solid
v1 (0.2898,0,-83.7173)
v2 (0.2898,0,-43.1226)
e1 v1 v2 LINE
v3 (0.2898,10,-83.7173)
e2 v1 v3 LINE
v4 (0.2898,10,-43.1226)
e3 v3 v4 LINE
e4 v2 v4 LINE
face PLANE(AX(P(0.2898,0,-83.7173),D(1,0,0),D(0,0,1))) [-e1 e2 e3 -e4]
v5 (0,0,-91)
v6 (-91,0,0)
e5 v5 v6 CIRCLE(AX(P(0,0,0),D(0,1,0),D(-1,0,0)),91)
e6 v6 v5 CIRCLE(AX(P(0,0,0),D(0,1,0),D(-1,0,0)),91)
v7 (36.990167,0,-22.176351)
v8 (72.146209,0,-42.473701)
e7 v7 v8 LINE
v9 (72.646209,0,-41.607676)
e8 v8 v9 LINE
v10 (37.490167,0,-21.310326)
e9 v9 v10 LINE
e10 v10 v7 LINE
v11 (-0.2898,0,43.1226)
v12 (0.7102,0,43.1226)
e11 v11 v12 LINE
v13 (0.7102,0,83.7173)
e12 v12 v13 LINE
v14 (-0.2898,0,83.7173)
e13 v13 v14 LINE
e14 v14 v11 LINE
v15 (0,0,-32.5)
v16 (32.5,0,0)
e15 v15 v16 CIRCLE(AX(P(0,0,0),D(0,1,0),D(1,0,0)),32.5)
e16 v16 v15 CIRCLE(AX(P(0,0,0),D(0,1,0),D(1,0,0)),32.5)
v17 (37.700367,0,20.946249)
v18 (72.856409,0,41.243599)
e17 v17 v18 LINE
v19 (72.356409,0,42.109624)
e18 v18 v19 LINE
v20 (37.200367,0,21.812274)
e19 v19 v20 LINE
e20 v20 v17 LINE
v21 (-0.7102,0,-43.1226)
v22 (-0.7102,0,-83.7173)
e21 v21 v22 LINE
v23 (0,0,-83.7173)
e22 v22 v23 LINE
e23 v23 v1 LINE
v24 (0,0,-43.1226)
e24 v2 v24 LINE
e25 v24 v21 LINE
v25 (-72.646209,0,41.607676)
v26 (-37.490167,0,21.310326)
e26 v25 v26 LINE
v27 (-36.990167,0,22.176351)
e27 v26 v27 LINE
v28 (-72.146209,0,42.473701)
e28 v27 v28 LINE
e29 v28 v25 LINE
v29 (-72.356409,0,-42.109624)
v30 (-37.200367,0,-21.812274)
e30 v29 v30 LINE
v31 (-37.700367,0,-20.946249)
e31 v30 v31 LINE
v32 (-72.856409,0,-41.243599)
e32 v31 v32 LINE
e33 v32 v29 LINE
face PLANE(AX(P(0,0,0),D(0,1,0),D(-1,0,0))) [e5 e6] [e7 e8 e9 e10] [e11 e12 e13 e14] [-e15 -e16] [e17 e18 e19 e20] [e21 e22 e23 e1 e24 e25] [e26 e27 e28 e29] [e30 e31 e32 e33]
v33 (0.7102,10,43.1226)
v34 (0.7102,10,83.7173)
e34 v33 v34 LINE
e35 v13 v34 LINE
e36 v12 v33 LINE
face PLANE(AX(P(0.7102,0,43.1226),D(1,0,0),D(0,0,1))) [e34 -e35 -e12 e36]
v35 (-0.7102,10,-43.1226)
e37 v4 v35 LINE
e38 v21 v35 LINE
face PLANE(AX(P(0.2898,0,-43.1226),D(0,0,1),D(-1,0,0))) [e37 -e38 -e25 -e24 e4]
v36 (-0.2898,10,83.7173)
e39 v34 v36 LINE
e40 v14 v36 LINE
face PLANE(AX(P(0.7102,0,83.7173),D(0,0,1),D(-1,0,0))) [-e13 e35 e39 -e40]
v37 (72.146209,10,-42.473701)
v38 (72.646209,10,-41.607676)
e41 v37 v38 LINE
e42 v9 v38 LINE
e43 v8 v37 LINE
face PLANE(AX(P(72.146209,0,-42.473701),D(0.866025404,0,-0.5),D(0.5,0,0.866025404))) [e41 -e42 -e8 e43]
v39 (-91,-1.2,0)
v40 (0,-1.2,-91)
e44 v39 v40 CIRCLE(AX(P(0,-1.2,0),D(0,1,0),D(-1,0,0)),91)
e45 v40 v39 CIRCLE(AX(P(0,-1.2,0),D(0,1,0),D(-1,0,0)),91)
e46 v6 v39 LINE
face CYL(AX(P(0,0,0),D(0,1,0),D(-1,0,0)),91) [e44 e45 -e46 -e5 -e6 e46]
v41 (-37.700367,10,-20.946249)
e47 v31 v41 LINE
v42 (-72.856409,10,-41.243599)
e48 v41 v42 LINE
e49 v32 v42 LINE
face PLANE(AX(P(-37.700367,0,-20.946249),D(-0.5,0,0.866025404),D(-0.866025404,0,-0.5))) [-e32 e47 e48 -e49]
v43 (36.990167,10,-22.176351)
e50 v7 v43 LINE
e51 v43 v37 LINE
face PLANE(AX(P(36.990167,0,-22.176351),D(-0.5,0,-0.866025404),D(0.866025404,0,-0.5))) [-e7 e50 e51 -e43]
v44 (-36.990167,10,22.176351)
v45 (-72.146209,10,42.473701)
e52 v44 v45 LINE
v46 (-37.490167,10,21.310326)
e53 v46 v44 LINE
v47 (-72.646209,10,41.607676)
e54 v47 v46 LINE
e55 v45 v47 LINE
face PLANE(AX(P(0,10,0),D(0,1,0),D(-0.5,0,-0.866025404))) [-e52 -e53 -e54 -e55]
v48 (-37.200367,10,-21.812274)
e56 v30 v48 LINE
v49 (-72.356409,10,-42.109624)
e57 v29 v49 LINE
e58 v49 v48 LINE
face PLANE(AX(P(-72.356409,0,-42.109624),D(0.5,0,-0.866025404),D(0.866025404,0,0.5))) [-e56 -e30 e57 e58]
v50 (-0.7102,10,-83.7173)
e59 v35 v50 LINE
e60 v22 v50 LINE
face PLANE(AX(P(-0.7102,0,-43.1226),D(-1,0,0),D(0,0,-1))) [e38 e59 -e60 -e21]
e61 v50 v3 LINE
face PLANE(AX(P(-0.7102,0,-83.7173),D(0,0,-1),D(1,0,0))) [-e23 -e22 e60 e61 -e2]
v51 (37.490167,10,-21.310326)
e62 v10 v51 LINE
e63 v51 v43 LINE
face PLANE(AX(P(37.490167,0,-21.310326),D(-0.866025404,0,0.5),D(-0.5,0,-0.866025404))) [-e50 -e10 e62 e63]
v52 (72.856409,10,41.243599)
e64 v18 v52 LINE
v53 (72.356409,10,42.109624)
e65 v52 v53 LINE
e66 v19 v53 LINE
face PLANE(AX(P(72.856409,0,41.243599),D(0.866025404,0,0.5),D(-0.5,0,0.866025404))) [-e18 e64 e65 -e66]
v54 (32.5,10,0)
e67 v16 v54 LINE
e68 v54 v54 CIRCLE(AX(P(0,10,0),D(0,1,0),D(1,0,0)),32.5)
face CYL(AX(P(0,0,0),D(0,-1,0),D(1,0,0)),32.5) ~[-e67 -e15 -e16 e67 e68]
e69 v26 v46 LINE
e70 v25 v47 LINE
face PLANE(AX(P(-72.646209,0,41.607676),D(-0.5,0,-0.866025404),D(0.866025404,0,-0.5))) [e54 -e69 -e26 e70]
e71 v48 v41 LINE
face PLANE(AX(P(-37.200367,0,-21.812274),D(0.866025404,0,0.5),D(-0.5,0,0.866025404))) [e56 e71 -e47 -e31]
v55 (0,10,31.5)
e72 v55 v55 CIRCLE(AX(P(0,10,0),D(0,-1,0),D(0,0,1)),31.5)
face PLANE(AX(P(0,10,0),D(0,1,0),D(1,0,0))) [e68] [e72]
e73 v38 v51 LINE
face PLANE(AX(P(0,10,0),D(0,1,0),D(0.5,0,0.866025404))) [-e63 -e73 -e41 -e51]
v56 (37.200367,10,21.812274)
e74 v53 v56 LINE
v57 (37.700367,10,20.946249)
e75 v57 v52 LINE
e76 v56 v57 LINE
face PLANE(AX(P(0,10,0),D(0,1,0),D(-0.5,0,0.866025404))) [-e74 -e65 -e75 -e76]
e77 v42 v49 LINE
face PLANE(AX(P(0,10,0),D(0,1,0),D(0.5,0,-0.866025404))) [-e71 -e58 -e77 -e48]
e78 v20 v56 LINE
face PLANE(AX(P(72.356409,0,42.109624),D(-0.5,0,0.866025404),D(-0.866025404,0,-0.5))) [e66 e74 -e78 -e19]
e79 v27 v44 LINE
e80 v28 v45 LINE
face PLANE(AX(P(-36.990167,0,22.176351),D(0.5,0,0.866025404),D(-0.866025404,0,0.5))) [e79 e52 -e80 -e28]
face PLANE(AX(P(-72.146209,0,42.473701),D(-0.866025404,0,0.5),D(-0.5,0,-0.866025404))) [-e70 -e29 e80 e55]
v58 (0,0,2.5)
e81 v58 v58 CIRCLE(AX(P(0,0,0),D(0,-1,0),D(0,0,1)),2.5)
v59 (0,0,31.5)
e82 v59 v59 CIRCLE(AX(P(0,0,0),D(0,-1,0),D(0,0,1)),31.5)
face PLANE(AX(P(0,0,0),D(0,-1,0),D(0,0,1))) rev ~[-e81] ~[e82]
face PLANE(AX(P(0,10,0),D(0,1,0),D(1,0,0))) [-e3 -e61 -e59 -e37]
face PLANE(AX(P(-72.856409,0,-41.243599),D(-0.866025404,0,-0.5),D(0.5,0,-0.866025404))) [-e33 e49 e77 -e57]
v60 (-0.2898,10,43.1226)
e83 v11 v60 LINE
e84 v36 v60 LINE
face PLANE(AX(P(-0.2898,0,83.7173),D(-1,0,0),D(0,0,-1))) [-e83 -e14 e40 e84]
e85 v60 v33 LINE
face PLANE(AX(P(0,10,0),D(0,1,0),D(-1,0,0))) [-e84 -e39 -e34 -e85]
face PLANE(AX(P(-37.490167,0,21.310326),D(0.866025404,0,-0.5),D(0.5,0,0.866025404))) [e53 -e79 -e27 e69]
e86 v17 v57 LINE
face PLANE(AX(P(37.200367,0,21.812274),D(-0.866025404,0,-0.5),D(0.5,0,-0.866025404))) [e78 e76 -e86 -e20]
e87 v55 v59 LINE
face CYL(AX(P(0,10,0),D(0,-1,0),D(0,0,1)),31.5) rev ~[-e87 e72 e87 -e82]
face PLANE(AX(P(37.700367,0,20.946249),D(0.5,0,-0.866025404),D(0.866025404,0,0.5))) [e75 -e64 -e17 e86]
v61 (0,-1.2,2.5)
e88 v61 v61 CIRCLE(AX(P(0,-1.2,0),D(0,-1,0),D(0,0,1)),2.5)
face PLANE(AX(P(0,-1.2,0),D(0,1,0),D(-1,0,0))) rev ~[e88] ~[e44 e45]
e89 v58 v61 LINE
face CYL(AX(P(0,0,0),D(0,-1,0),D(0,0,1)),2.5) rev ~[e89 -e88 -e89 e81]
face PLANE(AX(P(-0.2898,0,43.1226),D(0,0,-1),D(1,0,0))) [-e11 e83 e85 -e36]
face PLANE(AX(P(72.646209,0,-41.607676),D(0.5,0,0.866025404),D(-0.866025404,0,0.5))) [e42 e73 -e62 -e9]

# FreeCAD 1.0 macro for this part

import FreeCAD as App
import Part
import Sketcher

V = App.Vector

doc = App.newDocument("Part")
params = doc.addObject("Spreadsheet::Sheet", "Params")
for row, (alias, value) in enumerate([
    ("sketch1_diameter", "182 mm"),
    ("pad1_length", "1.2 mm"),
    ("sketch2_width", "1 mm"),
    ("pad2_length", "10 mm"),
    ("sketch3_diameter", "65 mm"),
    ("pad3_length", "10 mm"),
    ("sketch4_diameter", "63 mm"),
    ("hole_diameter", "63 mm"),
    ("hole_depth", "10 mm"),
    ("sketch5_diameter", "5 mm"),
    ("hole2_diameter", "5 mm"),
    ("hole2_depth", "2 mm"),
], start=1):
    params.set(f"A{row}", alias)
    params.set(f"B{row}", "=" + value)
    params.setAlias(f"B{row}", alias)

body = doc.addObject("PartDesign::Body", "Body")

sketch1 = doc.addObject("Sketcher::SketchObject", "Sketch")
body.addObject(sketch1)
sketch1.AttachmentSupport = (doc.XZ_Plane, [""])
sketch1.MapMode = "FlatFace"
sketch1.addGeometry(Part.Circle(V(0, 0, 0), V(0, 0, 1), 91), False)
sketch1.addConstraint([
    Sketcher.Constraint("Coincident", 0, 3, -1, 1),
    Sketcher.Constraint("Diameter", 0, 182.0),
])
sketch1.setExpression("Constraints[1]", "Params.sketch1_diameter")
pad1 = doc.addObject("PartDesign::Pad", "Pad")
body.addObject(pad1)
pad1.Profile = sketch1
pad1.setExpression("Length", "Params.pad1_length")

sketch2 = doc.addObject("Sketcher::SketchObject", "Sketch001")
body.addObject(sketch2)
sketch2.AttachmentSupport = (doc.XZ_Plane, [""])
sketch2.MapMode = "FlatFace"
sketch2.addGeometry([
    Part.LineSegment(V(0.3, -83.7, 0), V(-0.7, -83.7, 0)),
    Part.LineSegment(V(-0.7, -83.7, 0), V(-0.7, -43.1, 0)),
    Part.LineSegment(V(-0.7, -43.1, 0), V(0.3, -43.1, 0)),
    Part.LineSegment(V(0.3, -43.1, 0), V(0.3, -83.7, 0)),
], False)
sketch2.addConstraint([
    Sketcher.Constraint("Coincident", 0, 2, 1, 1),
    Sketcher.Constraint("Coincident", 1, 2, 2, 1),
    Sketcher.Constraint("Coincident", 2, 2, 3, 1),
    Sketcher.Constraint("Coincident", 3, 2, 0, 1),
    Sketcher.Constraint("Horizontal", 0),
    Sketcher.Constraint("Vertical", 1),
    Sketcher.Constraint("Horizontal", 2),
    Sketcher.Constraint("Vertical", 3),
    Sketcher.Constraint("DistanceX", 0, 2, 0, 1, 1.0),
    Sketcher.Constraint("DistanceY", 1, 1, 1, 2, 40.5947),
    Sketcher.Constraint("DistanceX", 0, 2, -1, 1, 0.7102),
    Sketcher.Constraint("DistanceY", 0, 2, -1, 1, 83.7173),
])
sketch2.setExpression("Constraints[8]", "Params.sketch2_width")
pad2 = doc.addObject("PartDesign::Pad", "Pad001")
body.addObject(pad2)
pad2.Profile = sketch2
pad2.setExpression("Length", "Params.pad2_length")
pad2.Reversed = True
doc.recompute()

polarpattern = doc.addObject("PartDesign::PolarPattern", "PolarPattern")
body.addObject(polarpattern)
polarpattern.Originals = [pad2]
polarpattern.Axis = (doc.Y_Axis, [""])
polarpattern.Angle = 360
polarpattern.Occurrences = 6
body.Tip = polarpattern

sketch3 = doc.addObject("Sketcher::SketchObject", "Sketch002")
body.addObject(sketch3)
sketch3.AttachmentSupport = (doc.XZ_Plane, [""])
sketch3.MapMode = "FlatFace"
sketch3.addGeometry(Part.Circle(V(0, 0, 0), V(0, 0, 1), 32), False)
sketch3.addConstraint([
    Sketcher.Constraint("Coincident", 0, 3, -1, 1),
    Sketcher.Constraint("Diameter", 0, 65.0),
])
sketch3.setExpression("Constraints[1]", "Params.sketch3_diameter")
pad3 = doc.addObject("PartDesign::Pad", "Pad002")
body.addObject(pad3)
pad3.Profile = sketch3
pad3.setExpression("Length", "Params.pad3_length")
pad3.Reversed = True

sketch4 = doc.addObject("Sketcher::SketchObject", "Sketch003")
body.addObject(sketch4)
sketch4.AttachmentSupport = (doc.XZ_Plane, [""])
sketch4.MapMode = "FlatFace"
sketch4.AttachmentOffset = App.Placement(V(0, 0, -10), App.Rotation())
sketch4.addGeometry(Part.Circle(V(0, 0, 0), V(0, 0, 1), 32), False)
sketch4.addConstraint([
    Sketcher.Constraint("Coincident", 0, 3, -1, 1),
    Sketcher.Constraint("Diameter", 0, 63.0),
])
sketch4.setExpression("Constraints[1]", "Params.sketch4_diameter")
doc.recompute()
hole = doc.addObject("PartDesign::Hole", "Hole")
body.addObject(hole)
hole.Profile = sketch4
hole.ThreadType = "None"
hole.setExpression("Diameter", "Params.hole_diameter")
hole.DepthType = "Dimension"
hole.setExpression("Depth", "Params.hole_depth")
hole.DrillPoint = "Flat"
hole.Reversed = True

sketch5 = doc.addObject("Sketcher::SketchObject", "Sketch004")
body.addObject(sketch5)
sketch5.AttachmentSupport = (doc.XZ_Plane, [""])
sketch5.MapMode = "FlatFace"
sketch5.addGeometry(Part.Circle(V(0, 0, 0), V(0, 0, 1), 2.5), False)
sketch5.addConstraint([
    Sketcher.Constraint("Coincident", 0, 3, -1, 1),
    Sketcher.Constraint("Diameter", 0, 5.0),
])
sketch5.setExpression("Constraints[1]", "Params.sketch5_diameter")
doc.recompute()
hole2 = doc.addObject("PartDesign::Hole", "Hole001")
body.addObject(hole2)
hole2.Profile = sketch5
hole2.ThreadType = "None"
hole2.setExpression("Diameter", "Params.hole2_diameter")
hole2.DepthType = "Dimension"
hole2.setExpression("Depth", "Params.hole2_depth")
hole2.DrillPoint = "Flat"
hole2.Reversed = True

doc.recompute()
